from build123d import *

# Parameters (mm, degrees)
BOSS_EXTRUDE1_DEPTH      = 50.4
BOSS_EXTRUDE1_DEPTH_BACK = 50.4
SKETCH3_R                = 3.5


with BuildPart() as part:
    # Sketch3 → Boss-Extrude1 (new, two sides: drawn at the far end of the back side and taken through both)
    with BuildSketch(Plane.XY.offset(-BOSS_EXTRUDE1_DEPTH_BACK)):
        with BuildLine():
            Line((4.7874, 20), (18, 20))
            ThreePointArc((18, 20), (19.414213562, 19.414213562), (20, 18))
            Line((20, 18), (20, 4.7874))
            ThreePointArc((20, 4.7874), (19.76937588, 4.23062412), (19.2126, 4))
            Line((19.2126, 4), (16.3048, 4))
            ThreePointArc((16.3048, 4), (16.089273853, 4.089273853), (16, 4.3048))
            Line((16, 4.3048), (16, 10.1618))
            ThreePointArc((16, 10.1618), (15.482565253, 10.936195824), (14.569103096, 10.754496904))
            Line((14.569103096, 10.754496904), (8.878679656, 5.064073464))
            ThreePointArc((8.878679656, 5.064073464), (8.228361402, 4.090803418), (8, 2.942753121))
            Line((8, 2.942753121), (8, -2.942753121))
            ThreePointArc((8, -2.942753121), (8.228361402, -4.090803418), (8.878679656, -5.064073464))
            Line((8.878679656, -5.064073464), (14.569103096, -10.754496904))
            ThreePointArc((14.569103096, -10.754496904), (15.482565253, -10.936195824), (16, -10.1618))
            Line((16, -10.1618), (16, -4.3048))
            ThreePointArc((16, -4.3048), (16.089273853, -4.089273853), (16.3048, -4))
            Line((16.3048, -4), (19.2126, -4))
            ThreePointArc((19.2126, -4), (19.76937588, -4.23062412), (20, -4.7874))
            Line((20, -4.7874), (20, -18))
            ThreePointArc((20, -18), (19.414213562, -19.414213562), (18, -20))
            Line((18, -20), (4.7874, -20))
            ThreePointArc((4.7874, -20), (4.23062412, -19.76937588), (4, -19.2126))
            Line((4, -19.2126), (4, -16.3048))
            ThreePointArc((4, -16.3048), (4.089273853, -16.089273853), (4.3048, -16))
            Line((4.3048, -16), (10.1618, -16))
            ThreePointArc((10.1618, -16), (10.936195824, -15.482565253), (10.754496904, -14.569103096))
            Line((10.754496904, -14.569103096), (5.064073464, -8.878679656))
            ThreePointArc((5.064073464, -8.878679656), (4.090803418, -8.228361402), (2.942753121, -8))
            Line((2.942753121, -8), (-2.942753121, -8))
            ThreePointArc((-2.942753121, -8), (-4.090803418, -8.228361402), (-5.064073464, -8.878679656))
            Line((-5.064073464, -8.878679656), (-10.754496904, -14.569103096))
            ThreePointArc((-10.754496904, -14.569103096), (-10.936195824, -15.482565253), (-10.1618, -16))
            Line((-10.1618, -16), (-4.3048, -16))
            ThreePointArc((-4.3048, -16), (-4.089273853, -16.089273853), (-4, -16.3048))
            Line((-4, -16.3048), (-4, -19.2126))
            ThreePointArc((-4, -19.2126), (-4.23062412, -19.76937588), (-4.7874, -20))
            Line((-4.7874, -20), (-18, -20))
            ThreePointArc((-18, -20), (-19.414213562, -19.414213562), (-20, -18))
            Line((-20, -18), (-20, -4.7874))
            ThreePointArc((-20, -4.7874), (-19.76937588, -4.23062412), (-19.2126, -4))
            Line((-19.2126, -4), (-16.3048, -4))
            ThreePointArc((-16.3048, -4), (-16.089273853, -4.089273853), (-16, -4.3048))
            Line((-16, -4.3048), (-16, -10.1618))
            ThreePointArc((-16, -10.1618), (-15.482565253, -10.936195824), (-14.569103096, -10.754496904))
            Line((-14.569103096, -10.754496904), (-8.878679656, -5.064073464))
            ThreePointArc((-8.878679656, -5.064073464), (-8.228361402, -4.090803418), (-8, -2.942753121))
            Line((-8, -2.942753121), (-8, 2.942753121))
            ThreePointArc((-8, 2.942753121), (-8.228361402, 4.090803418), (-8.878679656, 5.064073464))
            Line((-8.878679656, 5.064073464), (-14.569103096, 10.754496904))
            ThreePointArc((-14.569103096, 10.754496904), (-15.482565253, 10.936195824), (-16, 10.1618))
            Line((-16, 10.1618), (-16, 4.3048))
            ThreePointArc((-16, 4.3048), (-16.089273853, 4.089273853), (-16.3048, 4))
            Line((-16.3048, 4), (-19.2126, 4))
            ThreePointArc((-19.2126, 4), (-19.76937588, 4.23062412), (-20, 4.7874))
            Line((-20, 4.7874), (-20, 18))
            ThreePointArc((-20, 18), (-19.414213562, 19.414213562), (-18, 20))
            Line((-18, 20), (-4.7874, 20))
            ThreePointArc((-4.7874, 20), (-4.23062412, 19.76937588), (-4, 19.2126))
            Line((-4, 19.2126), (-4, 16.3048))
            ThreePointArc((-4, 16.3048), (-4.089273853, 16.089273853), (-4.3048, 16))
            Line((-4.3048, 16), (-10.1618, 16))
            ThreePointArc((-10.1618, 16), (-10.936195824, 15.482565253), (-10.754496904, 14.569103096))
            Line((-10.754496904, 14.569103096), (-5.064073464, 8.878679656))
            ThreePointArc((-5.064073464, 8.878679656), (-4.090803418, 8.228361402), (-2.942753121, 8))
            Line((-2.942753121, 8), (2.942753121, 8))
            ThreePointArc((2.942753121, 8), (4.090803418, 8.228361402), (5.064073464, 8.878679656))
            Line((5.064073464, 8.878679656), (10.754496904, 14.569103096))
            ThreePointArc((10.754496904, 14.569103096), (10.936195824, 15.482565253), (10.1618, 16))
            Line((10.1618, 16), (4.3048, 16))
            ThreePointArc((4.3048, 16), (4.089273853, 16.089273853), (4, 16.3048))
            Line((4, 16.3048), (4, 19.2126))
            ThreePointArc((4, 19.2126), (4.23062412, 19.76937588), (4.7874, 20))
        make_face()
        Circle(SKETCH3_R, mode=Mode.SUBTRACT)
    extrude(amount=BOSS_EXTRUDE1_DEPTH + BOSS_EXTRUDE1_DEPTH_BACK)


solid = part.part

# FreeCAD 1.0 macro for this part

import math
import FreeCAD as App
import Part
import Sketcher

V = App.Vector

doc = App.newDocument("Part")
body = doc.addObject("PartDesign::Body", "Body")

# Sketch on XY plane
sketch1 = body.newObject("Sketcher::SketchObject", "Sketch")
sketch1.AttachmentSupport = (doc.getObject("XY_Plane"), [""])
sketch1.MapMode = "FlatFace"
sketch1.addGeometry(Part.LineSegment(V(18, 20, 0), V(4.79, 20, 0)), False)
sketch1.addGeometry(Part.ArcOfCircle(Part.Circle(V(4.79, 19.21, 0), V(0, 0, 1), 0.79), math.radians(90), math.radians(180)), False)
sketch1.addGeometry(Part.LineSegment(V(4, 19.21, 0), V(4, 16.3, 0)), False)
sketch1.addGeometry(Part.ArcOfCircle(Part.Circle(V(4.3, 16.3, 0), V(0, 0, 1), 0.3), math.radians(180), math.radians(270)), False)
sketch1.addGeometry(Part.LineSegment(V(4.3, 16, 0), V(10.16, 16, 0)), False)
sketch1.addGeometry(Part.ArcOfCircle(Part.Circle(V(10.16, 15.16, 0), V(0, 0, 1), 0.84), math.radians(-45), math.radians(90)), False)
sketch1.addGeometry(Part.LineSegment(V(10.75, 14.57, 0), V(5.06, 8.88, 0)), False)
sketch1.addGeometry(Part.ArcOfCircle(Part.Circle(V(2.94, 11, 0), V(0, 0, 1), 3), math.radians(-90), math.radians(-45)), False)
sketch1.addGeometry(Part.LineSegment(V(2.94, 8, 0), V(-2.94, 8, 0)), False)
sketch1.addGeometry(Part.ArcOfCircle(Part.Circle(V(-2.94, 11, 0), V(0, 0, 1), 3), math.radians(-135), math.radians(-90)), False)
sketch1.addGeometry(Part.LineSegment(V(-5.06, 8.88, 0), V(-10.75, 14.57, 0)), False)
sketch1.addGeometry(Part.ArcOfCircle(Part.Circle(V(-10.16, 15.16, 0), V(0, 0, 1), 0.84), math.radians(90), math.radians(225)), False)
sketch1.addGeometry(Part.LineSegment(V(-10.16, 16, 0), V(-4.3, 16, 0)), False)
sketch1.addGeometry(Part.ArcOfCircle(Part.Circle(V(-4.3, 16.3, 0), V(0, 0, 1), 0.3), math.radians(-90), math.radians(0)), False)
sketch1.addGeometry(Part.LineSegment(V(-4, 16.3, 0), V(-4, 19.21, 0)), False)
sketch1.addGeometry(Part.ArcOfCircle(Part.Circle(V(-4.79, 19.21, 0), V(0, 0, 1), 0.79), math.radians(0), math.radians(90)), False)
sketch1.addGeometry(Part.LineSegment(V(-4.79, 20, 0), V(-18, 20, 0)), False)
sketch1.addGeometry(Part.ArcOfCircle(Part.Circle(V(-18, 18, 0), V(0, 0, 1), 2), math.radians(90), math.radians(180)), False)
sketch1.addGeometry(Part.LineSegment(V(-20, 18, 0), V(-20, 4.79, 0)), False)
sketch1.addGeometry(Part.ArcOfCircle(Part.Circle(V(-19.21, 4.79, 0), V(0, 0, 1), 0.79), math.radians(180), math.radians(270)), False)
sketch1.addGeometry(Part.LineSegment(V(-19.21, 4, 0), V(-16.3, 4, 0)), False)
sketch1.addGeometry(Part.ArcOfCircle(Part.Circle(V(-16.3, 4.3, 0), V(0, 0, 1), 0.3), math.radians(-90), math.radians(0)), False)
sketch1.addGeometry(Part.LineSegment(V(-16, 4.3, 0), V(-16, 10.16, 0)), False)
sketch1.addGeometry(Part.ArcOfCircle(Part.Circle(V(-15.16, 10.16, 0), V(0, 0, 1), 0.84), math.radians(45), math.radians(180)), False)
sketch1.addGeometry(Part.LineSegment(V(-14.57, 10.75, 0), V(-8.88, 5.06, 0)), False)
sketch1.addGeometry(Part.ArcOfCircle(Part.Circle(V(-11, 2.94, 0), V(0, 0, 1), 3), math.radians(0), math.radians(45)), False)
sketch1.addGeometry(Part.LineSegment(V(-8, 2.94, 0), V(-8, -2.94, 0)), False)
sketch1.addGeometry(Part.ArcOfCircle(Part.Circle(V(-11, -2.94, 0), V(0, 0, 1), 3), math.radians(-45), math.radians(0)), False)
sketch1.addGeometry(Part.LineSegment(V(-8.88, -5.06, 0), V(-14.57, -10.75, 0)), False)
sketch1.addGeometry(Part.ArcOfCircle(Part.Circle(V(-15.16, -10.16, 0), V(0, 0, 1), 0.84), math.radians(180), math.radians(315)), False)
sketch1.addGeometry(Part.LineSegment(V(-16, -10.16, 0), V(-16, -4.3, 0)), False)
sketch1.addGeometry(Part.ArcOfCircle(Part.Circle(V(-16.3, -4.3, 0), V(0, 0, 1), 0.3), math.radians(0), math.radians(90)), False)
sketch1.addGeometry(Part.LineSegment(V(-16.3, -4, 0), V(-19.21, -4, 0)), False)
sketch1.addGeometry(Part.ArcOfCircle(Part.Circle(V(-19.21, -4.79, 0), V(0, 0, 1), 0.79), math.radians(90), math.radians(180)), False)
sketch1.addGeometry(Part.LineSegment(V(-20, -4.79, 0), V(-20, -18, 0)), False)
sketch1.addGeometry(Part.ArcOfCircle(Part.Circle(V(-18, -18, 0), V(0, 0, 1), 2), math.radians(-180), math.radians(-90)), False)
sketch1.addGeometry(Part.LineSegment(V(-18, -20, 0), V(-4.79, -20, 0)), False)
sketch1.addGeometry(Part.ArcOfCircle(Part.Circle(V(-4.79, -19.21, 0), V(0, 0, 1), 0.79), math.radians(-90), math.radians(0)), False)
sketch1.addGeometry(Part.LineSegment(V(-4, -19.21, 0), V(-4, -16.3, 0)), False)
sketch1.addGeometry(Part.ArcOfCircle(Part.Circle(V(-4.3, -16.3, 0), V(0, 0, 1), 0.3), math.radians(0), math.radians(90)), False)
sketch1.addGeometry(Part.LineSegment(V(-4.3, -16, 0), V(-10.16, -16, 0)), False)
sketch1.addGeometry(Part.ArcOfCircle(Part.Circle(V(-10.16, -15.16, 0), V(0, 0, 1), 0.84), math.radians(135), math.radians(270)), False)
sketch1.addGeometry(Part.LineSegment(V(-10.75, -14.57, 0), V(-5.06, -8.88, 0)), False)
sketch1.addGeometry(Part.ArcOfCircle(Part.Circle(V(-2.94, -11, 0), V(0, 0, 1), 3), math.radians(90), math.radians(135)), False)
sketch1.addGeometry(Part.LineSegment(V(-2.94, -8, 0), V(2.94, -8, 0)), False)
sketch1.addGeometry(Part.ArcOfCircle(Part.Circle(V(2.94, -11, 0), V(0, 0, 1), 3), math.radians(45), math.radians(90)), False)
sketch1.addGeometry(Part.LineSegment(V(5.06, -8.88, 0), V(10.75, -14.57, 0)), False)
sketch1.addGeometry(Part.ArcOfCircle(Part.Circle(V(10.16, -15.16, 0), V(0, 0, 1), 0.84), math.radians(-90), math.radians(45)), False)
sketch1.addGeometry(Part.LineSegment(V(10.16, -16, 0), V(4.3, -16, 0)), False)
sketch1.addGeometry(Part.ArcOfCircle(Part.Circle(V(4.3, -16.3, 0), V(0, 0, 1), 0.3), math.radians(90), math.radians(180)), False)
sketch1.addGeometry(Part.LineSegment(V(4, -16.3, 0), V(4, -19.21, 0)), False)
sketch1.addGeometry(Part.ArcOfCircle(Part.Circle(V(4.79, -19.21, 0), V(0, 0, 1), 0.79), math.radians(180), math.radians(270)), False)
sketch1.addGeometry(Part.LineSegment(V(4.79, -20, 0), V(18, -20, 0)), False)
sketch1.addGeometry(Part.ArcOfCircle(Part.Circle(V(18, -18, 0), V(0, 0, 1), 2), math.radians(-90), math.radians(0)), False)
sketch1.addGeometry(Part.LineSegment(V(20, -18, 0), V(20, -4.79, 0)), False)
sketch1.addGeometry(Part.ArcOfCircle(Part.Circle(V(19.21, -4.79, 0), V(0, 0, 1), 0.79), math.radians(0), math.radians(90)), False)
sketch1.addGeometry(Part.LineSegment(V(19.21, -4, 0), V(16.3, -4, 0)), False)
sketch1.addGeometry(Part.ArcOfCircle(Part.Circle(V(16.3, -4.3, 0), V(0, 0, 1), 0.3), math.radians(90), math.radians(180)), False)
sketch1.addGeometry(Part.LineSegment(V(16, -4.3, 0), V(16, -10.16, 0)), False)
sketch1.addGeometry(Part.ArcOfCircle(Part.Circle(V(15.16, -10.16, 0), V(0, 0, 1), 0.84), math.radians(-135), math.radians(0)), False)
sketch1.addGeometry(Part.LineSegment(V(14.57, -10.75, 0), V(8.88, -5.06, 0)), False)
sketch1.addGeometry(Part.ArcOfCircle(Part.Circle(V(11, -2.94, 0), V(0, 0, 1), 3), math.radians(180), math.radians(225)), False)
sketch1.addGeometry(Part.LineSegment(V(8, -2.94, 0), V(8, 2.94, 0)), False)
sketch1.addGeometry(Part.ArcOfCircle(Part.Circle(V(11, 2.94, 0), V(0, 0, 1), 3), math.radians(135), math.radians(180)), False)
sketch1.addGeometry(Part.LineSegment(V(8.88, 5.06, 0), V(14.57, 10.75, 0)), False)
sketch1.addGeometry(Part.ArcOfCircle(Part.Circle(V(15.16, 10.16, 0), V(0, 0, 1), 0.84), math.radians(0), math.radians(135)), False)
sketch1.addGeometry(Part.LineSegment(V(16, 10.16, 0), V(16, 4.3, 0)), False)
sketch1.addGeometry(Part.ArcOfCircle(Part.Circle(V(16.3, 4.3, 0), V(0, 0, 1), 0.3), math.radians(180), math.radians(270)), False)
sketch1.addGeometry(Part.LineSegment(V(16.3, 4, 0), V(19.21, 4, 0)), False)
sketch1.addGeometry(Part.ArcOfCircle(Part.Circle(V(19.21, 4.79, 0), V(0, 0, 1), 0.79), math.radians(-90), math.radians(0)), False)
sketch1.addGeometry(Part.LineSegment(V(20, 4.79, 0), V(20, 18, 0)), False)
sketch1.addGeometry(Part.ArcOfCircle(Part.Circle(V(18, 18, 0), V(0, 0, 1), 2), math.radians(0), math.radians(90)), False)
sketch1.addGeometry(Part.Circle(V(0, 0, 0), V(0, 0, 1), 3.5), False)
sketch1.addConstraint(Sketcher.Constraint("Tangent", 0, 2, 1, 1))
sketch1.addConstraint(Sketcher.Constraint("Tangent", 1, 2, 2, 1))
sketch1.addConstraint(Sketcher.Constraint("Tangent", 2, 2, 3, 1))
sketch1.addConstraint(Sketcher.Constraint("Tangent", 3, 2, 4, 1))
sketch1.addConstraint(Sketcher.Constraint("Tangent", 4, 2, 5, 2))
sketch1.addConstraint(Sketcher.Constraint("Tangent", 5, 1, 6, 1))
sketch1.addConstraint(Sketcher.Constraint("Tangent", 6, 2, 7, 2))
sketch1.addConstraint(Sketcher.Constraint("Tangent", 7, 1, 8, 1))
sketch1.addConstraint(Sketcher.Constraint("Tangent", 8, 2, 9, 2))
sketch1.addConstraint(Sketcher.Constraint("Tangent", 9, 1, 10, 1))
sketch1.addConstraint(Sketcher.Constraint("Tangent", 10, 2, 11, 2))
sketch1.addConstraint(Sketcher.Constraint("Tangent", 11, 1, 12, 1))
sketch1.addConstraint(Sketcher.Constraint("Tangent", 12, 2, 13, 1))
sketch1.addConstraint(Sketcher.Constraint("Tangent", 13, 2, 14, 1))
sketch1.addConstraint(Sketcher.Constraint("Tangent", 14, 2, 15, 1))
sketch1.addConstraint(Sketcher.Constraint("Tangent", 15, 2, 16, 1))
sketch1.addConstraint(Sketcher.Constraint("Tangent", 16, 2, 17, 1))
sketch1.addConstraint(Sketcher.Constraint("Tangent", 17, 2, 18, 1))
sketch1.addConstraint(Sketcher.Constraint("Tangent", 18, 2, 19, 1))
sketch1.addConstraint(Sketcher.Constraint("Tangent", 19, 2, 20, 1))
sketch1.addConstraint(Sketcher.Constraint("Tangent", 20, 2, 21, 1))
sketch1.addConstraint(Sketcher.Constraint("Tangent", 21, 2, 22, 1))
sketch1.addConstraint(Sketcher.Constraint("Tangent", 22, 2, 23, 2))
sketch1.addConstraint(Sketcher.Constraint("Tangent", 23, 1, 24, 1))
sketch1.addConstraint(Sketcher.Constraint("Tangent", 24, 2, 25, 2))
sketch1.addConstraint(Sketcher.Constraint("Tangent", 25, 1, 26, 1))
sketch1.addConstraint(Sketcher.Constraint("Tangent", 26, 2, 27, 2))
sketch1.addConstraint(Sketcher.Constraint("Tangent", 27, 1, 28, 1))
sketch1.addConstraint(Sketcher.Constraint("Tangent", 28, 2, 29, 2))
sketch1.addConstraint(Sketcher.Constraint("Tangent", 29, 1, 30, 1))
sketch1.addConstraint(Sketcher.Constraint("Tangent", 30, 2, 31, 1))
sketch1.addConstraint(Sketcher.Constraint("Tangent", 31, 2, 32, 1))
sketch1.addConstraint(Sketcher.Constraint("Tangent", 32, 2, 33, 1))
sketch1.addConstraint(Sketcher.Constraint("Tangent", 33, 2, 34, 1))
sketch1.addConstraint(Sketcher.Constraint("Tangent", 34, 2, 35, 1))
sketch1.addConstraint(Sketcher.Constraint("Tangent", 35, 2, 36, 1))
sketch1.addConstraint(Sketcher.Constraint("Tangent", 36, 2, 37, 1))
sketch1.addConstraint(Sketcher.Constraint("Tangent", 37, 2, 38, 1))
sketch1.addConstraint(Sketcher.Constraint("Tangent", 38, 2, 39, 1))
sketch1.addConstraint(Sketcher.Constraint("Tangent", 39, 2, 40, 1))
sketch1.addConstraint(Sketcher.Constraint("Tangent", 40, 2, 41, 2))
sketch1.addConstraint(Sketcher.Constraint("Tangent", 41, 1, 42, 1))
sketch1.addConstraint(Sketcher.Constraint("Tangent", 42, 2, 43, 2))
sketch1.addConstraint(Sketcher.Constraint("Tangent", 43, 1, 44, 1))
sketch1.addConstraint(Sketcher.Constraint("Tangent", 44, 2, 45, 2))
sketch1.addConstraint(Sketcher.Constraint("Tangent", 45, 1, 46, 1))
sketch1.addConstraint(Sketcher.Constraint("Tangent", 46, 2, 47, 2))
sketch1.addConstraint(Sketcher.Constraint("Tangent", 47, 1, 48, 1))
sketch1.addConstraint(Sketcher.Constraint("Tangent", 48, 2, 49, 1))
sketch1.addConstraint(Sketcher.Constraint("Tangent", 49, 2, 50, 1))
sketch1.addConstraint(Sketcher.Constraint("Tangent", 50, 2, 51, 1))
sketch1.addConstraint(Sketcher.Constraint("Tangent", 51, 2, 52, 1))
sketch1.addConstraint(Sketcher.Constraint("Tangent", 52, 2, 53, 1))
sketch1.addConstraint(Sketcher.Constraint("Tangent", 53, 2, 54, 1))
sketch1.addConstraint(Sketcher.Constraint("Tangent", 54, 2, 55, 1))
sketch1.addConstraint(Sketcher.Constraint("Tangent", 55, 2, 56, 1))
sketch1.addConstraint(Sketcher.Constraint("Tangent", 56, 2, 57, 1))
sketch1.addConstraint(Sketcher.Constraint("Tangent", 57, 2, 58, 1))
sketch1.addConstraint(Sketcher.Constraint("Tangent", 58, 2, 59, 2))
sketch1.addConstraint(Sketcher.Constraint("Tangent", 59, 1, 60, 1))
sketch1.addConstraint(Sketcher.Constraint("Tangent", 60, 2, 61, 2))
sketch1.addConstraint(Sketcher.Constraint("Tangent", 61, 1, 62, 1))
sketch1.addConstraint(Sketcher.Constraint("Tangent", 62, 2, 63, 2))
sketch1.addConstraint(Sketcher.Constraint("Tangent", 63, 1, 64, 1))
sketch1.addConstraint(Sketcher.Constraint("Tangent", 64, 2, 65, 2))
sketch1.addConstraint(Sketcher.Constraint("Tangent", 65, 1, 66, 1))
sketch1.addConstraint(Sketcher.Constraint("Tangent", 66, 2, 67, 1))
sketch1.addConstraint(Sketcher.Constraint("Tangent", 67, 2, 68, 1))
sketch1.addConstraint(Sketcher.Constraint("Tangent", 68, 2, 69, 1))
sketch1.addConstraint(Sketcher.Constraint("Tangent", 69, 2, 70, 1))
sketch1.addConstraint(Sketcher.Constraint("Tangent", 70, 2, 71, 1))
sketch1.addConstraint(Sketcher.Constraint("Tangent", 71, 2, 0, 1))
sketch1.addConstraint(Sketcher.Constraint("Horizontal", 0))
sketch1.addConstraint(Sketcher.Constraint("Vertical", 2))
sketch1.addConstraint(Sketcher.Constraint("Horizontal", 4))
sketch1.addConstraint(Sketcher.Constraint("Horizontal", 8))
sketch1.addConstraint(Sketcher.Constraint("Horizontal", 12))
sketch1.addConstraint(Sketcher.Constraint("Vertical", 14))
sketch1.addConstraint(Sketcher.Constraint("Horizontal", 16))
sketch1.addConstraint(Sketcher.Constraint("Vertical", 18))
sketch1.addConstraint(Sketcher.Constraint("Horizontal", 20))
sketch1.addConstraint(Sketcher.Constraint("Vertical", 22))
sketch1.addConstraint(Sketcher.Constraint("Vertical", 26))
sketch1.addConstraint(Sketcher.Constraint("Vertical", 30))
sketch1.addConstraint(Sketcher.Constraint("Horizontal", 32))
sketch1.addConstraint(Sketcher.Constraint("Vertical", 34))
sketch1.addConstraint(Sketcher.Constraint("Horizontal", 36))
sketch1.addConstraint(Sketcher.Constraint("Vertical", 38))
sketch1.addConstraint(Sketcher.Constraint("Horizontal", 40))
sketch1.addConstraint(Sketcher.Constraint("Horizontal", 44))
sketch1.addConstraint(Sketcher.Constraint("Horizontal", 48))
sketch1.addConstraint(Sketcher.Constraint("Vertical", 50))
sketch1.addConstraint(Sketcher.Constraint("Horizontal", 52))
sketch1.addConstraint(Sketcher.Constraint("Vertical", 54))
sketch1.addConstraint(Sketcher.Constraint("Horizontal", 56))
sketch1.addConstraint(Sketcher.Constraint("Vertical", 58))
sketch1.addConstraint(Sketcher.Constraint("Vertical", 62))
sketch1.addConstraint(Sketcher.Constraint("Vertical", 66))
sketch1.addConstraint(Sketcher.Constraint("Horizontal", 68))
sketch1.addConstraint(Sketcher.Constraint("Vertical", 70))
sketch1.addConstraint(Sketcher.Constraint("Coincident", 72, 3, -1, 1))
sketch1.addConstraint(Sketcher.Constraint("Equal", 7, 9))
sketch1.addConstraint(Sketcher.Constraint("Equal", 5, 11))
sketch1.addConstraint(Sketcher.Constraint("Equal", 3, 13))
sketch1.addConstraint(Sketcher.Constraint("Equal", 1, 15))
sketch1.addConstraint(Sketcher.Constraint("Equal", 15, 19))
sketch1.addConstraint(Sketcher.Constraint("Equal", 13, 21))
sketch1.addConstraint(Sketcher.Constraint("Equal", 11, 23))
sketch1.addConstraint(Sketcher.Constraint("Equal", 9, 25))
sketch1.addConstraint(Sketcher.Constraint("Equal", 25, 27))
sketch1.addConstraint(Sketcher.Constraint("Equal", 23, 29))
sketch1.addConstraint(Sketcher.Constraint("Equal", 21, 31))
sketch1.addConstraint(Sketcher.Constraint("Equal", 19, 33))
sketch1.addConstraint(Sketcher.Constraint("Equal", 17, 35))
sketch1.addConstraint(Sketcher.Constraint("Equal", 33, 37))
sketch1.addConstraint(Sketcher.Constraint("Equal", 31, 39))
sketch1.addConstraint(Sketcher.Constraint("Equal", 29, 41))
sketch1.addConstraint(Sketcher.Constraint("Equal", 27, 43))
sketch1.addConstraint(Sketcher.Constraint("Equal", 43, 45))
sketch1.addConstraint(Sketcher.Constraint("Equal", 41, 47))
sketch1.addConstraint(Sketcher.Constraint("Equal", 39, 49))
sketch1.addConstraint(Sketcher.Constraint("Equal", 37, 51))
sketch1.addConstraint(Sketcher.Constraint("Equal", 35, 53))
sketch1.addConstraint(Sketcher.Constraint("Equal", 51, 55))
sketch1.addConstraint(Sketcher.Constraint("Equal", 49, 57))
sketch1.addConstraint(Sketcher.Constraint("Equal", 47, 59))
sketch1.addConstraint(Sketcher.Constraint("Equal", 45, 61))
sketch1.addConstraint(Sketcher.Constraint("Equal", 61, 63))
sketch1.addConstraint(Sketcher.Constraint("Equal", 59, 65))
sketch1.addConstraint(Sketcher.Constraint("Equal", 57, 67))
sketch1.addConstraint(Sketcher.Constraint("Equal", 55, 69))
sketch1.addConstraint(Sketcher.Constraint("Equal", 53, 71))
sketch1.addConstraint(Sketcher.Constraint("Symmetric", 1, 3, 37, 3, -1, 1))
sketch1.addConstraint(Sketcher.Constraint("Symmetric", 5, 3, 41, 3, -1, 1))
sketch1.addConstraint(Sketcher.Constraint("Symmetric", 7, 3, 43, 3, -1, 1))
sketch1.addConstraint(Sketcher.Constraint("Symmetric", 11, 3, 47, 3, -1, 1))
sketch1.addConstraint(Sketcher.Constraint("Symmetric", 15, 3, 51, 3, -1, 1))
sketch1.addConstraint(Sketcher.Constraint("Symmetric", 19, 3, 55, 3, -1, 1))
sketch1.addConstraint(Sketcher.Constraint("Symmetric", 23, 3, 59, 3, -1, 1))
sketch1.addConstraint(Sketcher.Constraint("Symmetric", 25, 3, 61, 3, -1, 1))
sketch1.addConstraint(Sketcher.Constraint("Symmetric", 29, 3, 65, 3, -1, 1))
sketch1.addConstraint(Sketcher.Constraint("Symmetric", 33, 3, 69, 3, -1, 1))
sketch1.addConstraint(Sketcher.Constraint("Symmetric", 5, 3, 11, 3, -2))
sketch1.addConstraint(Sketcher.Constraint("Symmetric", 1, 3, 15, 3, -2))
sketch1.addConstraint(Sketcher.Constraint("Symmetric", 33, 3, 55, 3, -2))
sketch1.addConstraint(Sketcher.Constraint("Symmetric", 29, 3, 59, 3, -2))
sketch1.addConstraint(Sketcher.Constraint("Perpendicular", 6, 10))
sketch1.addConstraint(Sketcher.Constraint("Parallel", 10, 24))
sketch1.addConstraint(Sketcher.Constraint("Perpendicular", 24, 28))
sketch1.addConstraint(Sketcher.Constraint("Perpendicular", 42, 46))
sketch1.addConstraint(Sketcher.Constraint("Perpendicular", 60, 64))
sketch1.addConstraint(Sketcher.Constraint("Horizontal", 27, 3, 61, 3))
sketch1.addConstraint(Sketcher.Constraint("Equal", 68, 2))
sketch1.addConstraint(Sketcher.Constraint("Equal", 52, 18))
sketch1.addConstraint(Sketcher.Constraint("Equal", 48, 22))
sketch1.addConstraint(Sketcher.Constraint("Equal", 44, 26))
sketch1.addConstraint(Sketcher.Constraint("Equal", 10, 24))
sketch1.addConstraint(Sketcher.Constraint("Diameter", 72, 7.0))
sketch1.addConstraint(Sketcher.Constraint("Radius", 7, 3.0))
sketch1.addConstraint(Sketcher.Constraint("Radius", 17, 2.0))
sketch1.addConstraint(Sketcher.Constraint("DistanceY", -1, 1, 7, 3, 11.0))
sketch1.addConstraint(Sketcher.Constraint("DistanceX", 17, 3, -1, 1, 18.0))
sketch1.addConstraint(Sketcher.Constraint("DistanceX", -1, 1, 1, 2, 4.0))
sketch1.addConstraint(Sketcher.Constraint("DistanceY", -1, 1, 3, 2, 16.0))
sketch1.addConstraint(Sketcher.Constraint("Radius", 1, 0.7874))
sketch1.addConstraint(Sketcher.Constraint("Radius", 3, 0.3048))
sketch1.addConstraint(Sketcher.Constraint("Radius", 5, 0.8382))
sketch1.addConstraint(Sketcher.Constraint("DistanceX", 4, 1, 4, 2, 5.857))
pad1 = body.newObject("PartDesign::Pad", "Pad")
pad1.Profile = sketch1
pad1.Type = "TwoLengths"
pad1.Length = 50.4
pad1.Length2 = 50.4

doc.recompute()
